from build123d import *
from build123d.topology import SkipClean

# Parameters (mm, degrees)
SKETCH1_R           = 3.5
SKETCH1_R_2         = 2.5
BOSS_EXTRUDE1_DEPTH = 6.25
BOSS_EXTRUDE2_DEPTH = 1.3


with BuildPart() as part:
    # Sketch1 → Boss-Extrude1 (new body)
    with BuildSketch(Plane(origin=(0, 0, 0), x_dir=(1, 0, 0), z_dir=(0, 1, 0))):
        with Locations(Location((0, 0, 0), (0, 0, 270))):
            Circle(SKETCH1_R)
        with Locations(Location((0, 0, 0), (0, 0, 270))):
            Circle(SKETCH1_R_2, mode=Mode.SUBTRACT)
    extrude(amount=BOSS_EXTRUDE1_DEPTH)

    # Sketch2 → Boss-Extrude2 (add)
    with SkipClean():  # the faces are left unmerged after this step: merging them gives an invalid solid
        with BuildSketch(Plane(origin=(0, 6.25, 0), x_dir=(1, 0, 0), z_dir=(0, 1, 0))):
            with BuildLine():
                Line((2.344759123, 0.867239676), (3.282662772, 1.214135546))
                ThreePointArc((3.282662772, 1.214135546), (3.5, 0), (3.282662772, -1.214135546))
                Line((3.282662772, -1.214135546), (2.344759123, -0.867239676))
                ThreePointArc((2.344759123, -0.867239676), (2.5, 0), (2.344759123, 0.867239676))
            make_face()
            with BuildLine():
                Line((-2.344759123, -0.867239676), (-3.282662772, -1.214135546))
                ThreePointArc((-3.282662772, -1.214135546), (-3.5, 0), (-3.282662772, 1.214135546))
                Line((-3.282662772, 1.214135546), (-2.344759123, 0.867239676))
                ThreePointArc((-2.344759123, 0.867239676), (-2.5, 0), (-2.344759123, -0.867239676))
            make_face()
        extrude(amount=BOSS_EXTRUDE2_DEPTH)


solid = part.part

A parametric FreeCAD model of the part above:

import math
import FreeCAD as App
import Part
import Sketcher

V = App.Vector
Q = App.Units.Quantity

doc = App.newDocument("Part")
params = doc.addObject("Spreadsheet::Sheet", "Params")
for row, (alias, value) in enumerate([
    ("sketch1_diameter", "7 mm"),
    ("sketch1_diameter2", "5 mm"),
    ("pad1_length", "6.25 mm"),
    ("sketch2_radius", "2.5 mm"),
    ("sketch2_radius2", "3.5 mm"),
    ("pad2_length", "1.3 mm"),
], start=1):
    params.set(f"A{row}", alias)
    params.set(f"B{row}", "=" + value)
    params.setAlias(f"B{row}", alias)

body = doc.addObject("PartDesign::Body", "Body")

# Sketch on XZ plane
sketch1 = doc.addObject("Sketcher::SketchObject", "Sketch")
body.addObject(sketch1)
sketch1.AttachmentSupport = (doc.XZ_Plane, [""])
sketch1.MapMode = "FlatFace"
sketch1.addGeometry([
    Part.Circle(V(0, 0, 0), V(0, 0, 1), 3.5),
    Part.Circle(V(0, 0, 0), V(0, 0, 1), 2.5),
], False)
sketch1.addConstraint([
    Sketcher.Constraint("Coincident", 0, 3, -1, 1),
    Sketcher.Constraint("Coincident", 1, 3, -1, 1),
    Sketcher.Constraint("Diameter", 0, Q("7 mm")),
    Sketcher.Constraint("Diameter", 1, Q("5 mm")),
])
sketch1.setExpression("Constraints[2]", "Params.sketch1_diameter")
sketch1.setExpression("Constraints[3]", "Params.sketch1_diameter2")
pad1 = doc.addObject("PartDesign::Pad", "Pad")
body.addObject(pad1)
pad1.Profile = sketch1
pad1.setExpression("Length", "Params.pad1_length")
pad1.Reversed = True

# Sketch on XZ plane
sketch2 = doc.addObject("Sketcher::SketchObject", "Sketch001")
body.addObject(sketch2)
sketch2.AttachmentSupport = (doc.XZ_Plane, [""])
sketch2.MapMode = "FlatFace"
sketch2.AttachmentOffset = App.Placement(V(0, 0, -6.25), App.Rotation())
sketch2.addGeometry([
    Part.LineSegment(V(3.282663, -1.214136, 0), V(2.344759, -0.86724, 0)),  # 0
    Part.ArcOfCircle(Part.Circle(V(0, 0, 0), V(0, 0, 1), 2.5), math.radians(-20.29757), math.radians(20.29757)),  # 1
    Part.LineSegment(V(2.344759, 0.86724, 0), V(3.282663, 1.214136, 0)),  # 2
    Part.ArcOfCircle(Part.Circle(V(0, 0, 0), V(0, 0, 1), 3.5), math.radians(-20.29757), math.radians(20.29757)),  # 3
    Part.LineSegment(V(-3.282663, 1.214136, 0), V(-2.344759, 0.86724, 0)),  # 4
    Part.ArcOfCircle(Part.Circle(V(0, 0, 0), V(0, 0, 1), 2.5), math.radians(159.70243), math.radians(200.29757)),  # 5
    Part.LineSegment(V(-2.344759, -0.86724, 0), V(-3.282663, -1.214136, 0)),  # 6
    Part.ArcOfCircle(Part.Circle(V(0, 0, 0), V(0, 0, 1), 3.5), math.radians(159.70243), math.radians(200.29757)),  # 7
], False)
sketch2.addConstraint([
    Sketcher.Constraint("Coincident", 0, 2, 1, 1),
    Sketcher.Constraint("Coincident", 1, 2, 2, 1),
    Sketcher.Constraint("Coincident", 2, 2, 3, 2),
    Sketcher.Constraint("Coincident", 3, 1, 0, 1),
    Sketcher.Constraint("Coincident", 4, 2, 5, 1),
    Sketcher.Constraint("Coincident", 5, 2, 6, 1),
    Sketcher.Constraint("Coincident", 6, 2, 7, 2),
    Sketcher.Constraint("Coincident", 7, 1, 4, 1),
    Sketcher.Constraint("Coincident", 1, 3, -1, 1),
    Sketcher.Constraint("Coincident", 3, 3, -1, 1),
    Sketcher.Constraint("Coincident", 5, 3, -1, 1),
    Sketcher.Constraint("Coincident", 7, 3, -1, 1),
    Sketcher.Constraint("Equal", 1, 5),
    Sketcher.Constraint("Equal", 3, 7),
    Sketcher.Constraint("Parallel", 0, 4),
    Sketcher.Constraint("Parallel", 2, 6),
    Sketcher.Constraint("Horizontal", 1, 2, 4, 2),
    Sketcher.Constraint("Horizontal", 0, 2, 5, 2),
    Sketcher.Constraint("Horizontal", 3, 1, 6, 2),
    Sketcher.Constraint("Vertical", 0, 2, 1, 2),
    Sketcher.Constraint("Radius", 1, Q("2.5 mm")),
    Sketcher.Constraint("Radius", 3, Q("3.5 mm")),
    Sketcher.Constraint("DistanceX", -1, 1, 0, 2, Q("2.344759 mm")),
    Sketcher.Constraint("DistanceY", 3, 1, 2, 2, Q("2.428271 mm")),
])
sketch2.setExpression("Constraints[20]", "Params.sketch2_radius")
sketch2.setExpression("Constraints[21]", "Params.sketch2_radius2")
pad2 = doc.addObject("PartDesign::Pad", "Pad001")
body.addObject(pad2)
pad2.Profile = sketch2
pad2.setExpression("Length", "Params.pad2_length")
pad2.Reversed = True

doc.recompute()
